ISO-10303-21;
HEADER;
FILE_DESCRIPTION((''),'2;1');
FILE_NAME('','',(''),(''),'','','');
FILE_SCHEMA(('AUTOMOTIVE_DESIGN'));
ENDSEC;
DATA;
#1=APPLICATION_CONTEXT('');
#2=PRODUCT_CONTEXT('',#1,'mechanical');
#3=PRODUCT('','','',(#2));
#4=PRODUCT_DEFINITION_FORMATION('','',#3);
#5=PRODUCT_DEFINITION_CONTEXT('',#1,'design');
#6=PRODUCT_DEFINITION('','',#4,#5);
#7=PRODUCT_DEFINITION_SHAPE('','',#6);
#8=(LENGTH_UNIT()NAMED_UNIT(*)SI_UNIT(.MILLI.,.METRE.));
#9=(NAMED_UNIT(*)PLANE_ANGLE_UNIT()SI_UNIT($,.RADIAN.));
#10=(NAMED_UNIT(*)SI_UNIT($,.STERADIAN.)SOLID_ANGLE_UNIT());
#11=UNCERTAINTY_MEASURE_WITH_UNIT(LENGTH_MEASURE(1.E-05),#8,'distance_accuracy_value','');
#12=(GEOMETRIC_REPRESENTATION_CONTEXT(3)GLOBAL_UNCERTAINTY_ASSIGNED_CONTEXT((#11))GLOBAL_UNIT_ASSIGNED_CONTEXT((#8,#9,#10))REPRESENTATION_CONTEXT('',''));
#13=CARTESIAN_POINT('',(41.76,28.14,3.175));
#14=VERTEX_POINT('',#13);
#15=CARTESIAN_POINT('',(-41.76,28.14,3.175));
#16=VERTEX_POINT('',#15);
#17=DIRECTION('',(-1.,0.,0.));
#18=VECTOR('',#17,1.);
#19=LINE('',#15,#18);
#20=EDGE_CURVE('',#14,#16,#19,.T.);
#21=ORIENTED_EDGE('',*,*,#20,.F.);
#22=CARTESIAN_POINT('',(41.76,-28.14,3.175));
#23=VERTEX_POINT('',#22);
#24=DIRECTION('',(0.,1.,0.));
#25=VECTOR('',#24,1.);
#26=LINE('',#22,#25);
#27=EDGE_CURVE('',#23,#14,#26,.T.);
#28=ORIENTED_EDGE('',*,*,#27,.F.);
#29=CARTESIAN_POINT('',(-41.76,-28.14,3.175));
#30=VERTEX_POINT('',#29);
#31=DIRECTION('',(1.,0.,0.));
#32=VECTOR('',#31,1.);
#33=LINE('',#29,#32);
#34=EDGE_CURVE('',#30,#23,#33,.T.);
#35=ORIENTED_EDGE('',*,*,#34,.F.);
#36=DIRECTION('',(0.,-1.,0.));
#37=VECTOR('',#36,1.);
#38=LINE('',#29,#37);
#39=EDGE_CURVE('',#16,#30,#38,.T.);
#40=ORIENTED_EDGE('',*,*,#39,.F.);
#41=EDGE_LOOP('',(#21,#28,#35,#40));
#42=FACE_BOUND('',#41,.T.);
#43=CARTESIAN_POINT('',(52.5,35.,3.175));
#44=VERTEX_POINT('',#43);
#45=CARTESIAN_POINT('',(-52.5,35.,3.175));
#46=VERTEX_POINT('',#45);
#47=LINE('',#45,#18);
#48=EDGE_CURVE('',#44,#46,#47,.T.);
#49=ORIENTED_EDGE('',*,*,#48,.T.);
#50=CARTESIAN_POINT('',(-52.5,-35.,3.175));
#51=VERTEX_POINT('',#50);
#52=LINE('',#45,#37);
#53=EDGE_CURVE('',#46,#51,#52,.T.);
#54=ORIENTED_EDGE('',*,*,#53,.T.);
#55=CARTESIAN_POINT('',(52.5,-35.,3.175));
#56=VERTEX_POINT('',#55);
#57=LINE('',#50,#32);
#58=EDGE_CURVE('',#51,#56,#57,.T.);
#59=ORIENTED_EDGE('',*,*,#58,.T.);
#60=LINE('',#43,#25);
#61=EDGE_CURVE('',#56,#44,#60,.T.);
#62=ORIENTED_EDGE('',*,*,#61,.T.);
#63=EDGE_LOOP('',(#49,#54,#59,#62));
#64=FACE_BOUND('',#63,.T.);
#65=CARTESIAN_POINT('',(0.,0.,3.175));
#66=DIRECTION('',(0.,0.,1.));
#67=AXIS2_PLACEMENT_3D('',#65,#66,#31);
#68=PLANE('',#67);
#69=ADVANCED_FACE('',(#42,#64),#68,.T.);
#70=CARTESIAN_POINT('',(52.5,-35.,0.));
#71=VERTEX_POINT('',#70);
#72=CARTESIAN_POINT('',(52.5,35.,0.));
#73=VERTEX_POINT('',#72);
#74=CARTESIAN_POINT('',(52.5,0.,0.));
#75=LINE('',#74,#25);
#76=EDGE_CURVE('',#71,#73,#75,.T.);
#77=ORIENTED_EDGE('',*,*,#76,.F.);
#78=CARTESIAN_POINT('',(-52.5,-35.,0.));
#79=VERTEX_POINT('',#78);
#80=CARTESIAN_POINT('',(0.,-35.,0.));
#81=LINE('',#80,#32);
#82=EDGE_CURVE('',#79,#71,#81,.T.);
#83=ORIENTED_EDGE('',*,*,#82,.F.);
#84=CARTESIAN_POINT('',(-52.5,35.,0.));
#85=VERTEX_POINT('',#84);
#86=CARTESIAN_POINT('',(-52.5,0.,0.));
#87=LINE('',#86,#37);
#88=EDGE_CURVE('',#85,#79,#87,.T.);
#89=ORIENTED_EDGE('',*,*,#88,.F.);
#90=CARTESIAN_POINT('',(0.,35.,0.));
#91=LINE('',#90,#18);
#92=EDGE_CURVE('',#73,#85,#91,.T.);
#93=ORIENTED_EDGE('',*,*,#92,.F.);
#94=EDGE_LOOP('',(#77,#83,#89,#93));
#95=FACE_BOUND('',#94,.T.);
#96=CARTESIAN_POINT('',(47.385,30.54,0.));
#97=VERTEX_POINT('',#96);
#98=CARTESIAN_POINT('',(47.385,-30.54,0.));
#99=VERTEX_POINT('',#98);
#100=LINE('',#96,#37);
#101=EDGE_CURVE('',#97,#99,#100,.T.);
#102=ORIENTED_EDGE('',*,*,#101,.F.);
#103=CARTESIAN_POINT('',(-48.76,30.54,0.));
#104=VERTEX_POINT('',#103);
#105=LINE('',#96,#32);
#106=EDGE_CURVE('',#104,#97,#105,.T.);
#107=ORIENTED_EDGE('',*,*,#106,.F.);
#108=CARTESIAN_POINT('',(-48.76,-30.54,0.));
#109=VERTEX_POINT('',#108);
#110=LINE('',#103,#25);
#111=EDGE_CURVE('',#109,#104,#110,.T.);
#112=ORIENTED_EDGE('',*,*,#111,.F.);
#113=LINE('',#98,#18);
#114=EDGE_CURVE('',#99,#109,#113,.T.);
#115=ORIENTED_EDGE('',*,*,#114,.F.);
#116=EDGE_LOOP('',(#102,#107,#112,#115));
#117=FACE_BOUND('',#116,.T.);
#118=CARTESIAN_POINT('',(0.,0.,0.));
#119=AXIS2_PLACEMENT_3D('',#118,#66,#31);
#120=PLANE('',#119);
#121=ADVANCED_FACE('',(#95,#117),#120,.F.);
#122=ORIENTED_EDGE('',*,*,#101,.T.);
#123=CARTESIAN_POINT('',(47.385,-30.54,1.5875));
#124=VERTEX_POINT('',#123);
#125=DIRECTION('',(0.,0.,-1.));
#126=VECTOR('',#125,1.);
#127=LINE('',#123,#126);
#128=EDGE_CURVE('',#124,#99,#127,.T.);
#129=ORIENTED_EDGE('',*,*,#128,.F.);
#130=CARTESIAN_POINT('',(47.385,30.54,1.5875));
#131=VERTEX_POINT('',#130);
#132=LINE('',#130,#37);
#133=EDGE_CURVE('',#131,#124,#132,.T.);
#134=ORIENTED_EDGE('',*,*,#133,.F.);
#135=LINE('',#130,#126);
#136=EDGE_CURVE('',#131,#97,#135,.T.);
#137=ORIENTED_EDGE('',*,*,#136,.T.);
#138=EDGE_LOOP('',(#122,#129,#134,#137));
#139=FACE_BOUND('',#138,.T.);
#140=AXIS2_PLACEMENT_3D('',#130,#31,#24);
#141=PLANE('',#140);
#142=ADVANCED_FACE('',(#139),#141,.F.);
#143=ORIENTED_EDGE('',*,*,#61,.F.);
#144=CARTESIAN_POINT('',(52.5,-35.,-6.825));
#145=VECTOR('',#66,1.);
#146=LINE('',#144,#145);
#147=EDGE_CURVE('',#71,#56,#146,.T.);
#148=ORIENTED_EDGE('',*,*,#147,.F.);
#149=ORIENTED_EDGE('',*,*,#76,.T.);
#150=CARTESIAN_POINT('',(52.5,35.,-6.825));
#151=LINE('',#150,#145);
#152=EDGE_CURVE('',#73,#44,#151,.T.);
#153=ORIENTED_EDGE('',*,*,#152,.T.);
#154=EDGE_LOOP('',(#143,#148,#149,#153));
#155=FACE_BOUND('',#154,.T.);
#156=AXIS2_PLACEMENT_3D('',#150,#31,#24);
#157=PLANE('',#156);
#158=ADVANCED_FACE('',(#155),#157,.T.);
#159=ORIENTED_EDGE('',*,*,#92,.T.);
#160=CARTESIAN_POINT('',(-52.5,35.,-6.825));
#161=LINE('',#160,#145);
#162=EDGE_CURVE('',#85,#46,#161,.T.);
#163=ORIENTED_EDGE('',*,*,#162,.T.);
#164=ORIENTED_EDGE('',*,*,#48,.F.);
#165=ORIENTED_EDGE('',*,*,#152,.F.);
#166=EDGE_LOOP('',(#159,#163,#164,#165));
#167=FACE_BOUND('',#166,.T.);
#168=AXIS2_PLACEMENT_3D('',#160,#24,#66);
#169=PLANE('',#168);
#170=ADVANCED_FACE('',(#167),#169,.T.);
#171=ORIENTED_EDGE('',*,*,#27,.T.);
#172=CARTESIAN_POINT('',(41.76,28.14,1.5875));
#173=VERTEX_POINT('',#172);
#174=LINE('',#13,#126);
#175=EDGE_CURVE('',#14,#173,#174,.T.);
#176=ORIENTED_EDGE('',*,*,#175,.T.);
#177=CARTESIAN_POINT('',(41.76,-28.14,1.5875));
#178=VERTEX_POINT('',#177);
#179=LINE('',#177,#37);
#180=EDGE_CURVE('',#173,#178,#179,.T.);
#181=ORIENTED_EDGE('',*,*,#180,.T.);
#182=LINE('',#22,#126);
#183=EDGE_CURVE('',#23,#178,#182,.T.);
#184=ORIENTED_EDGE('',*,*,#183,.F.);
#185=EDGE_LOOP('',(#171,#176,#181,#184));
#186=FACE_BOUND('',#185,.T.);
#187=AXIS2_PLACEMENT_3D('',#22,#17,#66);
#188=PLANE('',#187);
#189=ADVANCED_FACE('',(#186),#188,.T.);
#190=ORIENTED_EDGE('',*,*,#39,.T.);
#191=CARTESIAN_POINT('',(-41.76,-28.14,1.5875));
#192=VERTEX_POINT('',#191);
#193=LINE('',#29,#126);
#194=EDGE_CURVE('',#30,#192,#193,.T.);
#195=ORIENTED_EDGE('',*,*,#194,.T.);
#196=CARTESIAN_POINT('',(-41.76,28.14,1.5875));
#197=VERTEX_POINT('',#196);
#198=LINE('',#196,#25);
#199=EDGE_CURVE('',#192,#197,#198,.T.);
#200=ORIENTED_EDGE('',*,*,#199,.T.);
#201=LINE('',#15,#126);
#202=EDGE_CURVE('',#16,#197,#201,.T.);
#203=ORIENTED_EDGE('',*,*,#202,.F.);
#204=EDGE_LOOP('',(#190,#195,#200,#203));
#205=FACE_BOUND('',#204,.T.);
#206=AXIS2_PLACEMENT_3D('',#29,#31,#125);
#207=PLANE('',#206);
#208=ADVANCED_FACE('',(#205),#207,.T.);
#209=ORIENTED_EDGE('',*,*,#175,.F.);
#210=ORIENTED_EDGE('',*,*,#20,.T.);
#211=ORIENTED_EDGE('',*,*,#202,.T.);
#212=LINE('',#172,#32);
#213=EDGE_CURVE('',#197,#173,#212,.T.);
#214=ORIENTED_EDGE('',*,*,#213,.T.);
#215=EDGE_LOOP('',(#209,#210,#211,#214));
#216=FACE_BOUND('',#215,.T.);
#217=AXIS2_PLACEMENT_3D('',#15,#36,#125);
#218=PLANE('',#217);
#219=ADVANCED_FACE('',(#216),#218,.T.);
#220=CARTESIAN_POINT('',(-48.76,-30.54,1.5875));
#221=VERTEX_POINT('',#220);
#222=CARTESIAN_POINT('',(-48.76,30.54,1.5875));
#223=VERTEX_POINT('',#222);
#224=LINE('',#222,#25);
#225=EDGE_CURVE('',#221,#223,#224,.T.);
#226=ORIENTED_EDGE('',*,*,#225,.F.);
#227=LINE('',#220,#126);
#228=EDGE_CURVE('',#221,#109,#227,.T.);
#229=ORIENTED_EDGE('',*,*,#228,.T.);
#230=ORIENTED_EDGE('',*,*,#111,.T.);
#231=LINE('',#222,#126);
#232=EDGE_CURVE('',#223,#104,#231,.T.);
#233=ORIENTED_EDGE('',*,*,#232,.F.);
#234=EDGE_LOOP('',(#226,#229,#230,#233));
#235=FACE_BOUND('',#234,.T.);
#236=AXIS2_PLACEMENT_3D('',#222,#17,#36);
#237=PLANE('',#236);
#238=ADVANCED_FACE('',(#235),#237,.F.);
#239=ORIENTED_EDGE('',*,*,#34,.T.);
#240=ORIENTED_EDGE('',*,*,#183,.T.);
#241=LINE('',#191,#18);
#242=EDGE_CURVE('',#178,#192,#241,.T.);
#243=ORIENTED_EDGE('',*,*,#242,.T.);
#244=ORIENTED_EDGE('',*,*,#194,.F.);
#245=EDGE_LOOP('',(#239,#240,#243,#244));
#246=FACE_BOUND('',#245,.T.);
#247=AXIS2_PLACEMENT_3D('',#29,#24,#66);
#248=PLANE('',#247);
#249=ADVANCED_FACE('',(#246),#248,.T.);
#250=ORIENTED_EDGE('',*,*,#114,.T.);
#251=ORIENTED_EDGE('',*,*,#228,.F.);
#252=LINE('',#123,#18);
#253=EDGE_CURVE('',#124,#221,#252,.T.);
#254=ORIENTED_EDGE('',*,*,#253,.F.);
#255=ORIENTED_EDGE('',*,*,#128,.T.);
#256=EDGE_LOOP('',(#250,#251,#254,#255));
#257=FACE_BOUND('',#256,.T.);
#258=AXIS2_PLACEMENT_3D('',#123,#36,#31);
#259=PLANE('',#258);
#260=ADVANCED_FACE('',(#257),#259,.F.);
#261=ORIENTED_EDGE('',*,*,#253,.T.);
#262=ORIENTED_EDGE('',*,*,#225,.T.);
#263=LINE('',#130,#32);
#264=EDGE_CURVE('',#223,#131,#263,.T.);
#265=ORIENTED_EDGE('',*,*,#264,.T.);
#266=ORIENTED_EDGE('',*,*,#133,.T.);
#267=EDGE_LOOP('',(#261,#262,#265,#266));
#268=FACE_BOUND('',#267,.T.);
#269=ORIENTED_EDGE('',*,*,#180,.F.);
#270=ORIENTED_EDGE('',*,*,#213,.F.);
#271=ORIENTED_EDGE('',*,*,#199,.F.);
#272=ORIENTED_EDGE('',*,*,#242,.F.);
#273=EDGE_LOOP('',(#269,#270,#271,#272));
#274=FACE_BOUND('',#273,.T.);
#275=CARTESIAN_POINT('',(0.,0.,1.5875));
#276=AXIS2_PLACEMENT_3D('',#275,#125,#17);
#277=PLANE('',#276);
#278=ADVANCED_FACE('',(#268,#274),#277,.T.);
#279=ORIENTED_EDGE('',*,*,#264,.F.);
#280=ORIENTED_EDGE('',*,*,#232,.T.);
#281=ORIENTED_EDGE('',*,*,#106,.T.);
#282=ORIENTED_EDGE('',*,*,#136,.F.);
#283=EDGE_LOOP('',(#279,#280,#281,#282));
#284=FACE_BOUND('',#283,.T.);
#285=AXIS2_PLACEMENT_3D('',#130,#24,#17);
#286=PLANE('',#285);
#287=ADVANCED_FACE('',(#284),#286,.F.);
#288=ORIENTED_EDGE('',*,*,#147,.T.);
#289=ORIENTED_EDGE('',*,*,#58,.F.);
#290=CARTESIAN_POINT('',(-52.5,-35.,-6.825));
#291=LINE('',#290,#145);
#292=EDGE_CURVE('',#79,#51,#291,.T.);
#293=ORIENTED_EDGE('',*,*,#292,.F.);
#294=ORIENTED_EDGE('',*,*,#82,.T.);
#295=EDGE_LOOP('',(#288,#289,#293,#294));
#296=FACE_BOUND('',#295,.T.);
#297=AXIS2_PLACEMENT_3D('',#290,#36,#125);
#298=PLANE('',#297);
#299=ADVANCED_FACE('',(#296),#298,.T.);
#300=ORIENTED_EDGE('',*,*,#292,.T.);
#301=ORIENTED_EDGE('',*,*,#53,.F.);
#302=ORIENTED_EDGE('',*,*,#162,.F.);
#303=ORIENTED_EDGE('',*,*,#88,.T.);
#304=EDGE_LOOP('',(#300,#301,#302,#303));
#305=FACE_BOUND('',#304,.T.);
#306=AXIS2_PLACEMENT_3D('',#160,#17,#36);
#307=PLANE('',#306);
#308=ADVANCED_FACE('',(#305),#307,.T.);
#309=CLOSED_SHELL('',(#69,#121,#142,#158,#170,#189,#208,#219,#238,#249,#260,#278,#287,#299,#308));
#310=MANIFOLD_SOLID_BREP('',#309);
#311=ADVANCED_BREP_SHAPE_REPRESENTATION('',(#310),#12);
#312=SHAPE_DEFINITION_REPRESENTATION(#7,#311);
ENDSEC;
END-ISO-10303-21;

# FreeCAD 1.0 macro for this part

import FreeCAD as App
import Part
import Sketcher

V = App.Vector
Q = App.Units.Quantity

doc = App.newDocument("Part")
body = doc.addObject("PartDesign::Body", "Body")

# Sketch on XY plane
sketch1 = body.newObject("Sketcher::SketchObject", "Sketch")
sketch1.AttachmentSupport = (doc.getObject("XY_Plane"), [""])
sketch1.MapMode = "FlatFace"
sketch1.addGeometry([
    Part.LineSegment(V(-57, 43, 0), V(-57, -68, 0)),  # 0
    Part.LineSegment(V(-57, -68, 0), V(57, -68, 0)),  # 1
    Part.LineSegment(V(57, -68, 0), V(57, 43, 0)),  # 2
    Part.LineSegment(V(57, 43, 0), V(-57, 43, 0)),  # 3
    Part.Circle(V(-42, -53, 0), V(0, 0, 1), 8),  # 4
    Part.LineSegment(V(-20, -56, 0), V(-26, -56, 0)),  # 5
    Part.LineSegment(V(-26, -56, 0), V(-26, -50, 0)),  # 6
    Part.LineSegment(V(-26, -50, 0), V(-20, -50, 0)),  # 7
    Part.LineSegment(V(-20, -50, 0), V(-20, -56, 0)),  # 8
    Part.LineSegment(V(-4, -56, 0), V(-10, -56, 0)),  # 9
    Part.LineSegment(V(-10, -56, 0), V(-10, -50, 0)),  # 10
    Part.LineSegment(V(-10, -50, 0), V(-4, -50, 0)),  # 11
    Part.LineSegment(V(-4, -50, 0), V(-4, -56, 0)),  # 12
    Part.LineSegment(V(10, -56, 0), V(4, -56, 0)),  # 13
    Part.LineSegment(V(4, -56, 0), V(4, -50, 0)),  # 14
    Part.LineSegment(V(4, -50, 0), V(10, -50, 0)),  # 15
    Part.LineSegment(V(10, -50, 0), V(10, -56, 0)),  # 16
    Part.LineSegment(V(26, -56, 0), V(20, -56, 0)),  # 17
    Part.LineSegment(V(20, -56, 0), V(20, -50, 0)),  # 18
    Part.LineSegment(V(20, -50, 0), V(26, -50, 0)),  # 19
    Part.LineSegment(V(26, -50, 0), V(26, -56, 0)),  # 20
    Part.Circle(V(42, -53, 0), V(0, 0, 1), 8),  # 21
    Part.LineSegment(V(42, -28, 0), V(-42, -28, 0)),  # 22
    Part.LineSegment(V(-42, -28, 0), V(-42, 28, 0)),  # 23
    Part.LineSegment(V(-42, 28, 0), V(42, 28, 0)),  # 24
    Part.LineSegment(V(42, 28, 0), V(42, -28, 0)),  # 25
], False)
sketch1.addConstraint([
    Sketcher.Constraint("Coincident", 0, 2, 1, 1),
    Sketcher.Constraint("Coincident", 1, 2, 2, 1),
    Sketcher.Constraint("Coincident", 2, 2, 3, 1),
    Sketcher.Constraint("Coincident", 3, 2, 0, 1),
    Sketcher.Constraint("Coincident", 5, 2, 6, 1),
    Sketcher.Constraint("Coincident", 6, 2, 7, 1),
    Sketcher.Constraint("Coincident", 7, 2, 8, 1),
    Sketcher.Constraint("Coincident", 8, 2, 5, 1),
    Sketcher.Constraint("Coincident", 9, 2, 10, 1),
    Sketcher.Constraint("Coincident", 10, 2, 11, 1),
    Sketcher.Constraint("Coincident", 11, 2, 12, 1),
    Sketcher.Constraint("Coincident", 12, 2, 9, 1),
    Sketcher.Constraint("Coincident", 13, 2, 14, 1),
    Sketcher.Constraint("Coincident", 14, 2, 15, 1),
    Sketcher.Constraint("Coincident", 15, 2, 16, 1),
    Sketcher.Constraint("Coincident", 16, 2, 13, 1),
    Sketcher.Constraint("Coincident", 17, 2, 18, 1),
    Sketcher.Constraint("Coincident", 18, 2, 19, 1),
    Sketcher.Constraint("Coincident", 19, 2, 20, 1),
    Sketcher.Constraint("Coincident", 20, 2, 17, 1),
    Sketcher.Constraint("Coincident", 22, 2, 23, 1),
    Sketcher.Constraint("Coincident", 23, 2, 24, 1),
    Sketcher.Constraint("Coincident", 24, 2, 25, 1),
    Sketcher.Constraint("Coincident", 25, 2, 22, 1),
    Sketcher.Constraint("Vertical", 0),
    Sketcher.Constraint("Horizontal", 1),
    Sketcher.Constraint("Vertical", 2),
    Sketcher.Constraint("Horizontal", 3),
    Sketcher.Constraint("Horizontal", 5),
    Sketcher.Constraint("Vertical", 6),
    Sketcher.Constraint("Horizontal", 7),
    Sketcher.Constraint("Vertical", 8),
    Sketcher.Constraint("Horizontal", 9),
    Sketcher.Constraint("Vertical", 10),
    Sketcher.Constraint("Horizontal", 11),
    Sketcher.Constraint("Vertical", 12),
    Sketcher.Constraint("Horizontal", 13),
    Sketcher.Constraint("Vertical", 14),
    Sketcher.Constraint("Horizontal", 15),
    Sketcher.Constraint("Vertical", 16),
    Sketcher.Constraint("Horizontal", 17),
    Sketcher.Constraint("Vertical", 18),
    Sketcher.Constraint("Horizontal", 19),
    Sketcher.Constraint("Vertical", 20),
    Sketcher.Constraint("Horizontal", 22),
    Sketcher.Constraint("Vertical", 23),
    Sketcher.Constraint("Horizontal", 24),
    Sketcher.Constraint("Vertical", 25),
    Sketcher.Constraint("Equal", 4, 21),
    Sketcher.Constraint("Symmetric", 22, 2, 24, 2, -1, 1),
    Sketcher.Constraint("Symmetric", 4, 3, 21, 3, -2),
    Sketcher.Constraint("Symmetric", 12, 2, 13, 2, -2),
    Sketcher.Constraint("Symmetric", 10, 2, 15, 2, -2),
    Sketcher.Constraint("Symmetric", 8, 2, 17, 2, -2),
    Sketcher.Constraint("Symmetric", 6, 2, 19, 2, -2),
    Sketcher.Constraint("Horizontal", 8, 2, 9, 2),
    Sketcher.Constraint("Horizontal", 7, 2, 10, 2),
    Sketcher.Constraint("Vertical", 4, 3, 22, 2),
    Sketcher.Constraint("Equal", 7, 9),
    Sketcher.Constraint("Diameter", 4, Q("17 mm")),
    Sketcher.Constraint("DistanceX", 5, 2, 5, 1, Q("6 mm")),
    Sketcher.Constraint("DistanceY", 6, 1, 6, 2, Q("5.8 mm")),
    Sketcher.Constraint("DistanceX", 0, 2, 4, 3, Q("15 mm")),
    Sketcher.Constraint("DistanceY", 0, 2, 4, 3, Q("15 mm")),
    Sketcher.Constraint("DistanceX", 21, 3, 1, 2, Q("15 mm")),
    Sketcher.Constraint("DistanceX", 8, 2, 9, 2, Q("9 mm")),
    Sketcher.Constraint("DistanceX", 12, 2, 13, 2, Q("9 mm")),
    Sketcher.Constraint("DistanceY", 4, 3, 22, 2, Q("25 mm")),
    Sketcher.Constraint("DistanceY", 23, 2, 3, 2, Q("15 mm")),
    Sketcher.Constraint("DistanceX", 1, 1, 1, 2, Q("113.52 mm")),
    Sketcher.Constraint("DistanceY", 0, 2, 0, 1, Q("111.28 mm")),
    Sketcher.Constraint("DistanceY", 5, 2, 4, 3, Q("2.9 mm")),
])
pad1 = body.newObject("PartDesign::Pad", "Pad")
pad1.Profile = sketch1
pad1.Length = 3.175

# Sketch on XY plane
sketch2 = body.newObject("Sketcher::SketchObject", "Sketch001")
sketch2.AttachmentSupport = (doc.getObject("XY_Plane"), [""])
sketch2.MapMode = "FlatFace"
sketch2.addGeometry([
    Part.LineSegment(V(47, 31, 0), V(47, -31, 0)),  # 0
    Part.LineSegment(V(47, -31, 0), V(-49, -31, 0)),  # 1
    Part.LineSegment(V(-49, -31, 0), V(-49, 31, 0)),  # 2
    Part.LineSegment(V(-49, 31, 0), V(47, 31, 0)),  # 3
    Part.LineSegment(V(-42, -28, 0), V(42, -28, 0)),  # 4
    Part.LineSegment(V(42, -28, 0), V(42, 28, 0)),  # 5
    Part.LineSegment(V(42, 28, 0), V(-42, 28, 0)),  # 6
    Part.LineSegment(V(-42, 28, 0), V(-42, -28, 0)),  # 7
], False)
sketch2.addConstraint([
    Sketcher.Constraint("Coincident", 0, 2, 1, 1),
    Sketcher.Constraint("Coincident", 1, 2, 2, 1),
    Sketcher.Constraint("Coincident", 2, 2, 3, 1),
    Sketcher.Constraint("Coincident", 3, 2, 0, 1),
    Sketcher.Constraint("Coincident", 4, 2, 5, 1),
    Sketcher.Constraint("Coincident", 5, 2, 6, 1),
    Sketcher.Constraint("Coincident", 6, 2, 7, 1),
    Sketcher.Constraint("Coincident", 7, 2, 4, 1),
    Sketcher.Constraint("Vertical", 0),
    Sketcher.Constraint("Horizontal", 1),
    Sketcher.Constraint("Vertical", 2),
    Sketcher.Constraint("Horizontal", 3),
    Sketcher.Constraint("Horizontal", 4),
    Sketcher.Constraint("Vertical", 5),
    Sketcher.Constraint("Horizontal", 6),
    Sketcher.Constraint("Vertical", 7),
    Sketcher.Constraint("Symmetric", 4, 2, 6, 2, -1, 1),
    Sketcher.Constraint("DistanceX", 2, 2, 6, 2, Q("7 mm")),
    Sketcher.Constraint("DistanceX", 4, 1, 4, 2, Q("83.52 mm")),
    Sketcher.Constraint("DistanceY", 0, 2, 0, 1, Q("61.08 mm")),
    Sketcher.Constraint("DistanceY", 5, 1, 5, 2, Q("56.28 mm")),
    Sketcher.Constraint("DistanceY", 0, 2, 4, 2, Q("2.4 mm")),
    Sketcher.Constraint("DistanceX", 1, 2, 1, 1, Q("96.145 mm")),
])
pocket1 = body.newObject("PartDesign::Pocket", "Pocket")
pocket1.Profile = sketch2
pocket1.Length = 1.5875
pocket1.Reversed = True

# Sketch on XY plane
sketch3 = body.newObject("Sketcher::SketchObject", "Sketch002")
sketch3.AttachmentSupport = (doc.getObject("XY_Plane"), [""])
sketch3.MapMode = "FlatFace"
sketch3.AttachmentOffset = App.Placement(V(0, 0, 3.175), App.Rotation())
sketch3.addGeometry([
    Part.LineSegment(V(-57, 43, 0), V(-57, -68, 0)),  # 0
    Part.LineSegment(V(-57, -68, 0), V(57, -68, 0)),  # 1
    Part.LineSegment(V(57, -68, 0), V(57, 43, 0)),  # 2
    Part.LineSegment(V(57, 43, 0), V(-57, 43, 0)),  # 3
    Part.LineSegment(V(52, -35, 0), V(-52, -35, 0)),  # 4
    Part.LineSegment(V(-52, -35, 0), V(-52, 35, 0)),  # 5
    Part.LineSegment(V(-52, 35, 0), V(52, 35, 0)),  # 6
    Part.LineSegment(V(52, 35, 0), V(52, -35, 0)),  # 7
], False)
sketch3.addConstraint([
    Sketcher.Constraint("Coincident", 0, 2, 1, 1),
    Sketcher.Constraint("Coincident", 1, 2, 2, 1),
    Sketcher.Constraint("Coincident", 2, 2, 3, 1),
    Sketcher.Constraint("Coincident", 3, 2, 0, 1),
    Sketcher.Constraint("Coincident", 4, 2, 5, 1),
    Sketcher.Constraint("Coincident", 5, 2, 6, 1),
    Sketcher.Constraint("Coincident", 6, 2, 7, 1),
    Sketcher.Constraint("Coincident", 7, 2, 4, 1),
    Sketcher.Constraint("Vertical", 0),
    Sketcher.Constraint("Horizontal", 1),
    Sketcher.Constraint("Vertical", 2),
    Sketcher.Constraint("Horizontal", 3),
    Sketcher.Constraint("Horizontal", 4),
    Sketcher.Constraint("Vertical", 5),
    Sketcher.Constraint("Horizontal", 6),
    Sketcher.Constraint("Vertical", 7),
    Sketcher.Constraint("Symmetric", 4, 2, 6, 2, -1, 1),
    Sketcher.Constraint("DistanceX", 4, 2, 4, 1, Q("105 mm")),
    Sketcher.Constraint("DistanceY", 5, 1, 5, 2, Q("70 mm")),
    Sketcher.Constraint("DistanceX", 1, 1, 1, 2, Q("113.52 mm")),
    Sketcher.Constraint("DistanceY", 0, 2, 0, 1, Q("111.28 mm")),
    Sketcher.Constraint("DistanceX", 0, 2, -1, 1, Q("56.76 mm")),
    Sketcher.Constraint("DistanceY", 0, 2, -1, 1, Q("68.14 mm")),
])
pocket2 = body.newObject("PartDesign::Pocket", "Pocket001")
pocket2.Profile = sketch3
pocket2.Length = 10

doc.recompute()
